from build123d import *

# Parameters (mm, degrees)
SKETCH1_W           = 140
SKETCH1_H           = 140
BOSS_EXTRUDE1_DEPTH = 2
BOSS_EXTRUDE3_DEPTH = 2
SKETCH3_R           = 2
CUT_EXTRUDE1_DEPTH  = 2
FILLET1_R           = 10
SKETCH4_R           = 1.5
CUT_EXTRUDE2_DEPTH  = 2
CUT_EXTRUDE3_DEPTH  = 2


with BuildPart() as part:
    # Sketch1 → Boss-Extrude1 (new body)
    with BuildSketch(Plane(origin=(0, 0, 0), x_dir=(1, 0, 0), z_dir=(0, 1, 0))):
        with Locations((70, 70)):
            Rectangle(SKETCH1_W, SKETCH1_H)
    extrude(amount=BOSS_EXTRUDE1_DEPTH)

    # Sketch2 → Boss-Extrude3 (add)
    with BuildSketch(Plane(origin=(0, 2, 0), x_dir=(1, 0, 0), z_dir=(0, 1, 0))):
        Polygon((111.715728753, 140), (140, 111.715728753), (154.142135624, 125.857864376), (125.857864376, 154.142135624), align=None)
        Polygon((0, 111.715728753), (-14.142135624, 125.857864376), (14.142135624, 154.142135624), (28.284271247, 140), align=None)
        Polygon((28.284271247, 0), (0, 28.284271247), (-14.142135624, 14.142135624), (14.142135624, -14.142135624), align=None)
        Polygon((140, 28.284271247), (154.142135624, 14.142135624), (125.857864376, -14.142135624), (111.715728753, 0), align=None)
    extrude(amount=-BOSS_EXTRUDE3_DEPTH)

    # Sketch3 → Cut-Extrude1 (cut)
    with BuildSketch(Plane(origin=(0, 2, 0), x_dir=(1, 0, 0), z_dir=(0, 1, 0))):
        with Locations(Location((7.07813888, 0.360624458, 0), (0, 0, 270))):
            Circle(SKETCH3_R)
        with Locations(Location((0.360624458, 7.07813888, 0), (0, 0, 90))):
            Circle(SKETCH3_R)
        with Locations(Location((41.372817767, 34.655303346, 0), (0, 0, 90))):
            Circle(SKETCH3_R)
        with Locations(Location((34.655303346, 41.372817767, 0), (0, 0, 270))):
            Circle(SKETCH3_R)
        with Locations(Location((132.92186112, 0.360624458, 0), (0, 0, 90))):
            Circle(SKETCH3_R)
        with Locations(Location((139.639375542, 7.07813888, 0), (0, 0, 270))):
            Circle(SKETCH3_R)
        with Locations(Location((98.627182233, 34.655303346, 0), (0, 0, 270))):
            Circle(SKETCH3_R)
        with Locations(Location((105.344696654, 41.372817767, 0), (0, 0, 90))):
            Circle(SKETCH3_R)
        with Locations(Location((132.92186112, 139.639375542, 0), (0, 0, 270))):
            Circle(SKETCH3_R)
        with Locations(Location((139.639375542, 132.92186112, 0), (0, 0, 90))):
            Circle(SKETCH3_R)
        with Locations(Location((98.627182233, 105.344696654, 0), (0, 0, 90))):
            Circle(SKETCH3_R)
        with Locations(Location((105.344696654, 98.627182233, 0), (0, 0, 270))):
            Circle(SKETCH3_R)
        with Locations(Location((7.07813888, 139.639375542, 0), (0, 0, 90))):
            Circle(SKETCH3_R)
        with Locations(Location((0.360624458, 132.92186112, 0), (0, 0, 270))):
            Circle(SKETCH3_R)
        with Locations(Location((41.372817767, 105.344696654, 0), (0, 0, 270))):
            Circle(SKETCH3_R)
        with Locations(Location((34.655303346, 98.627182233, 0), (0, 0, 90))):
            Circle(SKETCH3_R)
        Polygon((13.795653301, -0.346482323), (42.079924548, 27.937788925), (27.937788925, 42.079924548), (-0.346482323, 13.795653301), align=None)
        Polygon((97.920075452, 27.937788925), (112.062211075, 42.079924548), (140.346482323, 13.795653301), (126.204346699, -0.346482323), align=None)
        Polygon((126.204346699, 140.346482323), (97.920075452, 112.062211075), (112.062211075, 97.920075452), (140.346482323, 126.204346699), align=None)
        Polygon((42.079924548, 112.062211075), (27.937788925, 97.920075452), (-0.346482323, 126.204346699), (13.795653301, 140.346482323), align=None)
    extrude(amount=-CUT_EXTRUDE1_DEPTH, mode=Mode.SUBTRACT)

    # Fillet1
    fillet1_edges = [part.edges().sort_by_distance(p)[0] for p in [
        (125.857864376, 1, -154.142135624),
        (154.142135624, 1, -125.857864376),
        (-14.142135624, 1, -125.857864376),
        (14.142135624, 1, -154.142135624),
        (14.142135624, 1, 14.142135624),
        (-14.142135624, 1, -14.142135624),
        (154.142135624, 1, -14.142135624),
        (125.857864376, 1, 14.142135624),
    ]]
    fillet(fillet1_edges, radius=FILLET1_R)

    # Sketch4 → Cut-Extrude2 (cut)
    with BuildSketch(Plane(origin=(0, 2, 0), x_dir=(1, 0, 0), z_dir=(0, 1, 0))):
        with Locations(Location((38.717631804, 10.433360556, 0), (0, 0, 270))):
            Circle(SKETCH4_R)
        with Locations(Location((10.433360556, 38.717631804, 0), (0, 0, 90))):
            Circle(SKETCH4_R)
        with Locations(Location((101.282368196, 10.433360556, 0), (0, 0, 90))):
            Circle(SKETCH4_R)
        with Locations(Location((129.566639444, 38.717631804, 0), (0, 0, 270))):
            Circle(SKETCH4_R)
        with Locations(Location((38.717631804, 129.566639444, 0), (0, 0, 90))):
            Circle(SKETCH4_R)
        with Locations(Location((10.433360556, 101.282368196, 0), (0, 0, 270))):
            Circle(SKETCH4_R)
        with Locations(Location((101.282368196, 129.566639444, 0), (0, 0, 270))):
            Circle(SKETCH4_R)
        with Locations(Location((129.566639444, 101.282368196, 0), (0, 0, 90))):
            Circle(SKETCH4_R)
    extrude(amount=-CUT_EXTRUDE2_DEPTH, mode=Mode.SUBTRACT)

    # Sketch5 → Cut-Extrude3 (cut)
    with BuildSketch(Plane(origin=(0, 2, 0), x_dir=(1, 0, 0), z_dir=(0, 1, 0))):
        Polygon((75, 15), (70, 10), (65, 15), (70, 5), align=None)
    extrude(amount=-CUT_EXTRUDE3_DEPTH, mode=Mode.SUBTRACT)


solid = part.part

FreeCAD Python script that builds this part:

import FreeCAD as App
import Part
import Sketcher


def edges_at(feature, points):
    """Names of the edges that pass closest to the given points."""
    edges = feature.Shape.Edges
    near = lambda p: min(range(len(edges)), key=lambda i: edges[i].distToShape(Part.Vertex(*p))[0])
    return sorted({f"Edge{near(p) + 1}" for p in points})

doc = App.newDocument("Part")
body = doc.addObject("PartDesign::Body", "Body")

# Sketch on XZ plane
sketch1 = body.newObject("Sketcher::SketchObject", "Sketch")
sketch1.AttachmentSupport = (doc.getObject("XZ_Plane"), [""])
sketch1.MapMode = "FlatFace"
sketch1.addGeometry([
    Part.LineSegment(App.Vector(0, -140, 0), App.Vector(0, 0, 0)),
    Part.LineSegment(App.Vector(0, 0, 0), App.Vector(140, 0, 0)),
    Part.LineSegment(App.Vector(140, 0, 0), App.Vector(140, -140, 0)),
    Part.LineSegment(App.Vector(140, -140, 0), App.Vector(0, -140, 0)),
], False)
sketch1.addConstraint([
    Sketcher.Constraint("Coincident", 0, 2, 1, 1),
    Sketcher.Constraint("Coincident", 1, 2, 2, 1),
    Sketcher.Constraint("Coincident", 2, 2, 3, 1),
    Sketcher.Constraint("Coincident", 3, 2, 0, 1),
    Sketcher.Constraint("Vertical", 0),
    Sketcher.Constraint("Horizontal", 1),
    Sketcher.Constraint("Vertical", 2),
    Sketcher.Constraint("Horizontal", 3),
    Sketcher.Constraint("Coincident", 0, 2, -1, 1),
    Sketcher.Constraint("Equal", 3, 0),
    Sketcher.Constraint("DistanceX", 1, 1, 1, 2, 140.0),
])
pad1 = body.newObject("PartDesign::Pad", "Pad")
pad1.Profile = sketch1
pad1.Length = 2
pad1.Reversed = True

# Sketch on XZ plane
sketch2 = body.newObject("Sketcher::SketchObject", "Sketch001")
sketch2.AttachmentSupport = (doc.getObject("XZ_Plane"), [""])
sketch2.MapMode = "FlatFace"
sketch2.AttachmentOffset = App.Placement(App.Vector(0, 0, -2), App.Rotation())
sketch2.addGeometry([
    Part.LineSegment(App.Vector(112, -140, 0), App.Vector(140, -112, 0)),  # 0
    Part.LineSegment(App.Vector(140, -112, 0), App.Vector(154, -126, 0)),  # 1
    Part.LineSegment(App.Vector(154, -126, 0), App.Vector(126, -154, 0)),  # 2
    Part.LineSegment(App.Vector(126, -154, 0), App.Vector(112, -140, 0)),  # 3
    Part.LineSegment(App.Vector(-14, -126, 0), App.Vector(0, -112, 0)),  # 4
    Part.LineSegment(App.Vector(0, -112, 0), App.Vector(28, -140, 0)),  # 5
    Part.LineSegment(App.Vector(28, -140, 0), App.Vector(14, -154, 0)),  # 6
    Part.LineSegment(App.Vector(14, -154, 0), App.Vector(-14, -126, 0)),  # 7
    Part.LineSegment(App.Vector(28, 0, 0), App.Vector(0, -28, 0)),  # 8
    Part.LineSegment(App.Vector(0, -28, 0), App.Vector(-14, -14, 0)),  # 9
    Part.LineSegment(App.Vector(-14, -14, 0), App.Vector(14, 14, 0)),  # 10
    Part.LineSegment(App.Vector(14, 14, 0), App.Vector(28, 0, 0)),  # 11
    Part.LineSegment(App.Vector(154, -14, 0), App.Vector(140, -28, 0)),  # 12
    Part.LineSegment(App.Vector(140, -28, 0), App.Vector(112, 0, 0)),  # 13
    Part.LineSegment(App.Vector(112, 0, 0), App.Vector(126, 14, 0)),  # 14
    Part.LineSegment(App.Vector(126, 14, 0), App.Vector(154, -14, 0)),  # 15
], False)
sketch2.addConstraint([
    Sketcher.Constraint("Coincident", 0, 2, 1, 1),
    Sketcher.Constraint("Coincident", 1, 2, 2, 1),
    Sketcher.Constraint("Coincident", 2, 2, 3, 1),
    Sketcher.Constraint("Coincident", 3, 2, 0, 1),
    Sketcher.Constraint("Coincident", 4, 2, 5, 1),
    Sketcher.Constraint("Coincident", 5, 2, 6, 1),
    Sketcher.Constraint("Coincident", 6, 2, 7, 1),
    Sketcher.Constraint("Coincident", 7, 2, 4, 1),
    Sketcher.Constraint("Coincident", 8, 2, 9, 1),
    Sketcher.Constraint("Coincident", 9, 2, 10, 1),
    Sketcher.Constraint("Coincident", 10, 2, 11, 1),
    Sketcher.Constraint("Coincident", 11, 2, 8, 1),
    Sketcher.Constraint("Coincident", 12, 2, 13, 1),
    Sketcher.Constraint("Coincident", 13, 2, 14, 1),
    Sketcher.Constraint("Coincident", 14, 2, 15, 1),
    Sketcher.Constraint("Coincident", 15, 2, 12, 1),
    Sketcher.Constraint("Symmetric", 9, 2, 10, 2, -1, 1),
    Sketcher.Constraint("PointOnObject", 4, 2, -2),
    Sketcher.Constraint("PointOnObject", 8, 2, -2),
    Sketcher.Constraint("PointOnObject", 11, 2, -1),
    Sketcher.Constraint("PointOnObject", 13, 2, -1),
    Sketcher.Constraint("Perpendicular", 0, 1),
    Sketcher.Constraint("Perpendicular", 1, 2),
    Sketcher.Constraint("Perpendicular", 2, 3),
    Sketcher.Constraint("Perpendicular", 3, 4),
    Sketcher.Constraint("Perpendicular", 4, 5),
    Sketcher.Constraint("Perpendicular", 5, 6),
    Sketcher.Constraint("Perpendicular", 6, 7),
    Sketcher.Constraint("Perpendicular", 7, 8),
    Sketcher.Constraint("Perpendicular", 8, 9),
    Sketcher.Constraint("Perpendicular", 9, 10),
    Sketcher.Constraint("Perpendicular", 10, 11),
    Sketcher.Constraint("Perpendicular", 11, 12),
    Sketcher.Constraint("Perpendicular", 12, 13),
    Sketcher.Constraint("Perpendicular", 13, 14),
    Sketcher.Constraint("Perpendicular", 14, 15),
    Sketcher.Constraint("Horizontal", 0, 2, 4, 2),
    Sketcher.Constraint("Horizontal", 3, 2, 5, 2),
    Sketcher.Constraint("Horizontal", 2, 2, 6, 2),
    Sketcher.Constraint("Horizontal", 8, 2, 12, 2),
    Sketcher.Constraint("Horizontal", 10, 2, 14, 2),
    Sketcher.Constraint("Vertical", 7, 2, 9, 2),
    Sketcher.Constraint("Vertical", 6, 2, 10, 2),
    Sketcher.Constraint("Vertical", 0, 2, 12, 2),
    Sketcher.Constraint("Distance", 0, 40.0),
    Sketcher.Constraint("DistanceX", -1, 1, 0, 2, 140.0),
    Sketcher.Constraint("DistanceY", 3, 2, -1, 1, 140.0),
])
pad2 = body.newObject("PartDesign::Pad", "Pad001")
pad2.Profile = sketch2
pad2.Length = 2

# Sketch on XZ plane
sketch3 = body.newObject("Sketcher::SketchObject", "Sketch002")
sketch3.AttachmentSupport = (doc.getObject("XZ_Plane"), [""])
sketch3.MapMode = "FlatFace"
sketch3.AttachmentOffset = App.Placement(App.Vector(0, 0, -2), App.Rotation())
sketch3.addGeometry([
    Part.Circle(App.Vector(7.1, -0.4, 0), App.Vector(0, 0, 1), 2),  # 0
    Part.Circle(App.Vector(0.4, -7.1, 0), App.Vector(0, 0, 1), 2),  # 1
    Part.Circle(App.Vector(41.4, -34.7, 0), App.Vector(0, 0, 1), 2),  # 2
    Part.Circle(App.Vector(34.7, -41.4, 0), App.Vector(0, 0, 1), 2),  # 3
    Part.Circle(App.Vector(132.9, -0.4, 0), App.Vector(0, 0, 1), 2),  # 4
    Part.Circle(App.Vector(139.6, -7.1, 0), App.Vector(0, 0, 1), 2),  # 5
    Part.Circle(App.Vector(98.6, -34.7, 0), App.Vector(0, 0, 1), 2),  # 6
    Part.Circle(App.Vector(105.3, -41.4, 0), App.Vector(0, 0, 1), 2),  # 7
    Part.Circle(App.Vector(132.9, -139.6, 0), App.Vector(0, 0, 1), 2),  # 8
    Part.Circle(App.Vector(139.6, -132.9, 0), App.Vector(0, 0, 1), 2),  # 9
    Part.Circle(App.Vector(98.6, -105.3, 0), App.Vector(0, 0, 1), 2),  # 10
    Part.Circle(App.Vector(105.3, -98.6, 0), App.Vector(0, 0, 1), 2),  # 11
    Part.Circle(App.Vector(7.1, -139.6, 0), App.Vector(0, 0, 1), 2),  # 12
    Part.Circle(App.Vector(0.4, -132.9, 0), App.Vector(0, 0, 1), 2),  # 13
    Part.Circle(App.Vector(41.4, -105.3, 0), App.Vector(0, 0, 1), 2),  # 14
    Part.Circle(App.Vector(34.7, -98.6, 0), App.Vector(0, 0, 1), 2),  # 15
    Part.LineSegment(App.Vector(13.8, 0.3, 0), App.Vector(42.1, -27.9, 0)),  # 16
    Part.LineSegment(App.Vector(42.1, -27.9, 0), App.Vector(27.9, -42.1, 0)),  # 17
    Part.LineSegment(App.Vector(27.9, -42.1, 0), App.Vector(-0.3, -13.8, 0)),  # 18
    Part.LineSegment(App.Vector(-0.3, -13.8, 0), App.Vector(13.8, 0.3, 0)),  # 19
    Part.LineSegment(App.Vector(112.1, -42.1, 0), App.Vector(97.9, -27.9, 0)),  # 20
    Part.LineSegment(App.Vector(97.9, -27.9, 0), App.Vector(126.2, 0.3, 0)),  # 21
    Part.LineSegment(App.Vector(126.2, 0.3, 0), App.Vector(140.3, -13.8, 0)),  # 22
    Part.LineSegment(App.Vector(140.3, -13.8, 0), App.Vector(112.1, -42.1, 0)),  # 23
    Part.LineSegment(App.Vector(126.2, -140.3, 0), App.Vector(97.9, -112.1, 0)),  # 24
    Part.LineSegment(App.Vector(97.9, -112.1, 0), App.Vector(112.1, -97.9, 0)),  # 25
    Part.LineSegment(App.Vector(112.1, -97.9, 0), App.Vector(140.3, -126.2, 0)),  # 26
    Part.LineSegment(App.Vector(140.3, -126.2, 0), App.Vector(126.2, -140.3, 0)),  # 27
    Part.LineSegment(App.Vector(27.9, -97.9, 0), App.Vector(42.1, -112.1, 0)),  # 28
    Part.LineSegment(App.Vector(42.1, -112.1, 0), App.Vector(13.8, -140.3, 0)),  # 29
    Part.LineSegment(App.Vector(13.8, -140.3, 0), App.Vector(-0.3, -126.2, 0)),  # 30
    Part.LineSegment(App.Vector(-0.3, -126.2, 0), App.Vector(27.9, -97.9, 0)),  # 31
], False)
sketch3.addConstraint([
    Sketcher.Constraint("Coincident", 16, 2, 17, 1),
    Sketcher.Constraint("Coincident", 17, 2, 18, 1),
    Sketcher.Constraint("Coincident", 18, 2, 19, 1),
    Sketcher.Constraint("Coincident", 19, 2, 16, 1),
    Sketcher.Constraint("Coincident", 20, 2, 21, 1),
    Sketcher.Constraint("Coincident", 21, 2, 22, 1),
    Sketcher.Constraint("Coincident", 22, 2, 23, 1),
    Sketcher.Constraint("Coincident", 23, 2, 20, 1),
    Sketcher.Constraint("Coincident", 24, 2, 25, 1),
    Sketcher.Constraint("Coincident", 25, 2, 26, 1),
    Sketcher.Constraint("Coincident", 26, 2, 27, 1),
    Sketcher.Constraint("Coincident", 27, 2, 24, 1),
    Sketcher.Constraint("Coincident", 28, 2, 29, 1),
    Sketcher.Constraint("Coincident", 29, 2, 30, 1),
    Sketcher.Constraint("Coincident", 30, 2, 31, 1),
    Sketcher.Constraint("Coincident", 31, 2, 28, 1),
    Sketcher.Constraint("Equal", 0, 1),
    Sketcher.Constraint("Equal", 1, 2),
    Sketcher.Constraint("Equal", 2, 3),
    Sketcher.Constraint("Equal", 3, 4),
    Sketcher.Constraint("Equal", 4, 5),
    Sketcher.Constraint("Equal", 5, 6),
    Sketcher.Constraint("Equal", 6, 7),
    Sketcher.Constraint("Equal", 7, 8),
    Sketcher.Constraint("Equal", 8, 9),
    Sketcher.Constraint("Equal", 9, 10),
    Sketcher.Constraint("Equal", 10, 11),
    Sketcher.Constraint("Equal", 11, 12),
    Sketcher.Constraint("Equal", 12, 13),
    Sketcher.Constraint("Equal", 13, 14),
    Sketcher.Constraint("Equal", 14, 15),
    Sketcher.Constraint("Perpendicular", 16, 17),
    Sketcher.Constraint("Perpendicular", 17, 18),
    Sketcher.Constraint("Perpendicular", 18, 19),
    Sketcher.Constraint("Perpendicular", 19, 20),
    Sketcher.Constraint("Perpendicular", 20, 21),
    Sketcher.Constraint("Perpendicular", 21, 22),
    Sketcher.Constraint("Perpendicular", 22, 23),
    Sketcher.Constraint("Perpendicular", 23, 24),
    Sketcher.Constraint("Perpendicular", 24, 25),
    Sketcher.Constraint("Perpendicular", 25, 26),
    Sketcher.Constraint("Perpendicular", 26, 27),
    Sketcher.Constraint("Perpendicular", 27, 28),
    Sketcher.Constraint("Perpendicular", 28, 29),
    Sketcher.Constraint("Perpendicular", 29, 30),
    Sketcher.Constraint("Perpendicular", 30, 31),
    Sketcher.Constraint("Horizontal", 0, 3, 4, 3),
    Sketcher.Constraint("Horizontal", 1, 3, 5, 3),
    Sketcher.Constraint("Horizontal", 2, 3, 6, 3),
    Sketcher.Constraint("Horizontal", 3, 3, 7, 3),
    Sketcher.Constraint("Horizontal", 8, 3, 12, 3),
    Sketcher.Constraint("Horizontal", 9, 3, 13, 3),
    Sketcher.Constraint("Horizontal", 10, 3, 14, 3),
    Sketcher.Constraint("Horizontal", 11, 3, 15, 3),
    Sketcher.Constraint("Horizontal", 16, 2, 20, 2),
    Sketcher.Constraint("Horizontal", 19, 2, 21, 2),
    Sketcher.Constraint("Horizontal", 18, 2, 22, 2),
    Sketcher.Constraint("Horizontal", 24, 2, 28, 2),
    Sketcher.Constraint("Horizontal", 27, 2, 29, 2),
    Sketcher.Constraint("Horizontal", 26, 2, 30, 2),
    Sketcher.Constraint("Vertical", 4, 3, 8, 3),
    Sketcher.Constraint("Vertical", 5, 3, 9, 3),
    Sketcher.Constraint("Vertical", 6, 3, 10, 3),
    Sketcher.Constraint("Vertical", 7, 3, 11, 3),
    Sketcher.Constraint("Vertical", 0, 3, 12, 3),
    Sketcher.Constraint("Vertical", 1, 3, 13, 3),
    Sketcher.Constraint("Vertical", 2, 3, 14, 3),
    Sketcher.Constraint("Vertical", 3, 3, 15, 3),
    Sketcher.Constraint("Vertical", 20, 2, 24, 2),
    Sketcher.Constraint("Vertical", 23, 2, 25, 2),
    Sketcher.Constraint("Vertical", 22, 2, 26, 2),
    Sketcher.Constraint("Vertical", 16, 2, 28, 2),
    Sketcher.Constraint("Vertical", 19, 2, 29, 2),
    Sketcher.Constraint("Diameter", 0, 4.0),
    Sketcher.Constraint("Distance", 16, 40.0),
    Sketcher.Constraint("Distance", 17, 20.0),
    Sketcher.Constraint("DistanceX", 1, 3, 16, 2, 41.7193),
    Sketcher.Constraint("DistanceY", 17, 2, 0, 3, 41.7193),
    Sketcher.Constraint("DistanceX", 20, 2, 5, 3, 41.7193),
    Sketcher.Constraint("DistanceY", 7, 3, 21, 2, 41.7193),
    Sketcher.Constraint("DistanceY", 8, 3, 25, 2, 41.7193),
    Sketcher.Constraint("DistanceY", 29, 2, 15, 3, 41.7193),
    Sketcher.Constraint("DistanceX", -1, 1, 0, 3, 7.078139),
    Sketcher.Constraint("DistanceY", 1, 3, -1, 1, 7.078139),
    Sketcher.Constraint("DistanceX", -1, 1, 4, 3, 132.921861),
    Sketcher.Constraint("DistanceY", 9, 3, -1, 1, 132.921861),
    Sketcher.Constraint("DistanceY", 16, 2, -1, 1, 27.937789),
    Sketcher.Constraint("DistanceX", -1, 1, 17, 2, 27.937789),
    Sketcher.Constraint("DistanceX", -1, 1, 23, 2, 112.062211),
    Sketcher.Constraint("DistanceY", 24, 2, -1, 1, 112.062211),
    Sketcher.Constraint("DistanceX", 0, 3, 2, 3, 34.294679),
    Sketcher.Constraint("DistanceY", 2, 3, 0, 3, 34.294679),
    Sketcher.Constraint("DistanceX", 1, 3, 3, 3, 34.294679),
    Sketcher.Constraint("DistanceX", 6, 3, 4, 3, 34.294679),
    Sketcher.Constraint("DistanceX", 7, 3, 5, 3, 34.294679),
    Sketcher.Constraint("DistanceY", 8, 3, 10, 3, 34.294679),
])
pocket1 = body.newObject("PartDesign::Pocket", "Pocket")
pocket1.Profile = sketch3
pocket1.Length = 2
pocket1.Reversed = True
doc.recompute()

fillet = body.newObject("PartDesign::Fillet", "Fillet")
fillet.Base = (pocket1, edges_at(pocket1, [
    (125.858, 1, -154.142),
    (154.142, 1, -125.858),
    (-14.142, 1, -125.858),
    (14.142, 1, -154.142),
    (14.142, 1, 14.142),
    (-14.142, 1, -14.142),
    (154.142, 1, -14.142),
    (125.858, 1, 14.142),
]))
fillet.Radius = 10

# Sketch on XZ plane
sketch4 = body.newObject("Sketcher::SketchObject", "Sketch003")
sketch4.AttachmentSupport = (doc.getObject("XZ_Plane"), [""])
sketch4.MapMode = "FlatFace"
sketch4.AttachmentOffset = App.Placement(App.Vector(0, 0, -2), App.Rotation())
sketch4.addGeometry([
    Part.Circle(App.Vector(38.7, -10.4, 0), App.Vector(0, 0, 1), 1.5),  # 0
    Part.Circle(App.Vector(10.4, -38.7, 0), App.Vector(0, 0, 1), 1.5),  # 1
    Part.Circle(App.Vector(101.3, -10.4, 0), App.Vector(0, 0, 1), 1.5),  # 2
    Part.Circle(App.Vector(129.6, -38.7, 0), App.Vector(0, 0, 1), 1.5),  # 3
    Part.Circle(App.Vector(38.7, -129.6, 0), App.Vector(0, 0, 1), 1.5),  # 4
    Part.Circle(App.Vector(10.4, -101.3, 0), App.Vector(0, 0, 1), 1.5),  # 5
    Part.Circle(App.Vector(101.3, -129.6, 0), App.Vector(0, 0, 1), 1.5),  # 6
    Part.Circle(App.Vector(129.6, -101.3, 0), App.Vector(0, 0, 1), 1.5),  # 7
], False)
sketch4.addConstraint([
    Sketcher.Constraint("Equal", 0, 1),
    Sketcher.Constraint("Equal", 1, 2),
    Sketcher.Constraint("Equal", 2, 3),
    Sketcher.Constraint("Equal", 3, 4),
    Sketcher.Constraint("Equal", 4, 5),
    Sketcher.Constraint("Equal", 5, 6),
    Sketcher.Constraint("Equal", 6, 7),
    Sketcher.Constraint("Horizontal", 0, 3, 2, 3),
    Sketcher.Constraint("Horizontal", 1, 3, 3, 3),
    Sketcher.Constraint("Horizontal", 4, 3, 6, 3),
    Sketcher.Constraint("Horizontal", 5, 3, 7, 3),
    Sketcher.Constraint("Vertical", 0, 3, 4, 3),
    Sketcher.Constraint("Vertical", 1, 3, 5, 3),
    Sketcher.Constraint("Vertical", 2, 3, 6, 3),
    Sketcher.Constraint("Vertical", 3, 3, 7, 3),
    Sketcher.Constraint("Diameter", 0, 3.0),
    Sketcher.Constraint("DistanceX", -1, 1, 0, 3, 38.717632),
    Sketcher.Constraint("DistanceY", 0, 3, -1, 1, 10.433361),
    Sketcher.Constraint("DistanceX", -1, 1, 1, 3, 10.433361),
    Sketcher.Constraint("DistanceY", 1, 3, -1, 1, 38.717632),
    Sketcher.Constraint("DistanceX", -1, 1, 2, 3, 101.282368),
    Sketcher.Constraint("DistanceX", -1, 1, 3, 3, 129.566639),
    Sketcher.Constraint("DistanceY", 4, 3, -1, 1, 129.566639),
    Sketcher.Constraint("DistanceY", 5, 3, -1, 1, 101.282368),
])
pocket2 = body.newObject("PartDesign::Pocket", "Pocket001")
pocket2.Profile = sketch4
pocket2.Length = 2
pocket2.Reversed = True

# Sketch on XZ plane
sketch5 = body.newObject("Sketcher::SketchObject", "Sketch004")
sketch5.AttachmentSupport = (doc.getObject("XZ_Plane"), [""])
sketch5.MapMode = "FlatFace"
sketch5.AttachmentOffset = App.Placement(App.Vector(0, 0, -2), App.Rotation())
sketch5.addGeometry([
    Part.LineSegment(App.Vector(75, -15, 0), App.Vector(70, -10, 0)),
    Part.LineSegment(App.Vector(70, -10, 0), App.Vector(65, -15, 0)),
    Part.LineSegment(App.Vector(65, -15, 0), App.Vector(70, -5, 0)),
    Part.LineSegment(App.Vector(70, -5, 0), App.Vector(75, -15, 0)),
], False)
sketch5.addConstraint([
    Sketcher.Constraint("Coincident", 0, 2, 1, 1),
    Sketcher.Constraint("Coincident", 1, 2, 2, 1),
    Sketcher.Constraint("Coincident", 2, 2, 3, 1),
    Sketcher.Constraint("Coincident", 3, 2, 0, 1),
    Sketcher.Constraint("Perpendicular", 0, 1),
    Sketcher.Constraint("Horizontal", 1, 2, 3, 2),
    Sketcher.Constraint("Vertical", 0, 2, 2, 2),
    Sketcher.Constraint("Equal", 0, 1),
    Sketcher.Constraint("DistanceX", -1, 1, 0, 2, 70.0),
    Sketcher.Constraint("DistanceY", 0, 2, -1, 1, 10.0),
    Sketcher.Constraint("DistanceX", -1, 1, 1, 2, 65.0),
    Sketcher.Constraint("DistanceY", 2, 2, -1, 1, 5.0),
])
pocket3 = body.newObject("PartDesign::Pocket", "Pocket002")
pocket3.Profile = sketch5
pocket3.Length = 2
pocket3.Reversed = True

doc.recompute()
